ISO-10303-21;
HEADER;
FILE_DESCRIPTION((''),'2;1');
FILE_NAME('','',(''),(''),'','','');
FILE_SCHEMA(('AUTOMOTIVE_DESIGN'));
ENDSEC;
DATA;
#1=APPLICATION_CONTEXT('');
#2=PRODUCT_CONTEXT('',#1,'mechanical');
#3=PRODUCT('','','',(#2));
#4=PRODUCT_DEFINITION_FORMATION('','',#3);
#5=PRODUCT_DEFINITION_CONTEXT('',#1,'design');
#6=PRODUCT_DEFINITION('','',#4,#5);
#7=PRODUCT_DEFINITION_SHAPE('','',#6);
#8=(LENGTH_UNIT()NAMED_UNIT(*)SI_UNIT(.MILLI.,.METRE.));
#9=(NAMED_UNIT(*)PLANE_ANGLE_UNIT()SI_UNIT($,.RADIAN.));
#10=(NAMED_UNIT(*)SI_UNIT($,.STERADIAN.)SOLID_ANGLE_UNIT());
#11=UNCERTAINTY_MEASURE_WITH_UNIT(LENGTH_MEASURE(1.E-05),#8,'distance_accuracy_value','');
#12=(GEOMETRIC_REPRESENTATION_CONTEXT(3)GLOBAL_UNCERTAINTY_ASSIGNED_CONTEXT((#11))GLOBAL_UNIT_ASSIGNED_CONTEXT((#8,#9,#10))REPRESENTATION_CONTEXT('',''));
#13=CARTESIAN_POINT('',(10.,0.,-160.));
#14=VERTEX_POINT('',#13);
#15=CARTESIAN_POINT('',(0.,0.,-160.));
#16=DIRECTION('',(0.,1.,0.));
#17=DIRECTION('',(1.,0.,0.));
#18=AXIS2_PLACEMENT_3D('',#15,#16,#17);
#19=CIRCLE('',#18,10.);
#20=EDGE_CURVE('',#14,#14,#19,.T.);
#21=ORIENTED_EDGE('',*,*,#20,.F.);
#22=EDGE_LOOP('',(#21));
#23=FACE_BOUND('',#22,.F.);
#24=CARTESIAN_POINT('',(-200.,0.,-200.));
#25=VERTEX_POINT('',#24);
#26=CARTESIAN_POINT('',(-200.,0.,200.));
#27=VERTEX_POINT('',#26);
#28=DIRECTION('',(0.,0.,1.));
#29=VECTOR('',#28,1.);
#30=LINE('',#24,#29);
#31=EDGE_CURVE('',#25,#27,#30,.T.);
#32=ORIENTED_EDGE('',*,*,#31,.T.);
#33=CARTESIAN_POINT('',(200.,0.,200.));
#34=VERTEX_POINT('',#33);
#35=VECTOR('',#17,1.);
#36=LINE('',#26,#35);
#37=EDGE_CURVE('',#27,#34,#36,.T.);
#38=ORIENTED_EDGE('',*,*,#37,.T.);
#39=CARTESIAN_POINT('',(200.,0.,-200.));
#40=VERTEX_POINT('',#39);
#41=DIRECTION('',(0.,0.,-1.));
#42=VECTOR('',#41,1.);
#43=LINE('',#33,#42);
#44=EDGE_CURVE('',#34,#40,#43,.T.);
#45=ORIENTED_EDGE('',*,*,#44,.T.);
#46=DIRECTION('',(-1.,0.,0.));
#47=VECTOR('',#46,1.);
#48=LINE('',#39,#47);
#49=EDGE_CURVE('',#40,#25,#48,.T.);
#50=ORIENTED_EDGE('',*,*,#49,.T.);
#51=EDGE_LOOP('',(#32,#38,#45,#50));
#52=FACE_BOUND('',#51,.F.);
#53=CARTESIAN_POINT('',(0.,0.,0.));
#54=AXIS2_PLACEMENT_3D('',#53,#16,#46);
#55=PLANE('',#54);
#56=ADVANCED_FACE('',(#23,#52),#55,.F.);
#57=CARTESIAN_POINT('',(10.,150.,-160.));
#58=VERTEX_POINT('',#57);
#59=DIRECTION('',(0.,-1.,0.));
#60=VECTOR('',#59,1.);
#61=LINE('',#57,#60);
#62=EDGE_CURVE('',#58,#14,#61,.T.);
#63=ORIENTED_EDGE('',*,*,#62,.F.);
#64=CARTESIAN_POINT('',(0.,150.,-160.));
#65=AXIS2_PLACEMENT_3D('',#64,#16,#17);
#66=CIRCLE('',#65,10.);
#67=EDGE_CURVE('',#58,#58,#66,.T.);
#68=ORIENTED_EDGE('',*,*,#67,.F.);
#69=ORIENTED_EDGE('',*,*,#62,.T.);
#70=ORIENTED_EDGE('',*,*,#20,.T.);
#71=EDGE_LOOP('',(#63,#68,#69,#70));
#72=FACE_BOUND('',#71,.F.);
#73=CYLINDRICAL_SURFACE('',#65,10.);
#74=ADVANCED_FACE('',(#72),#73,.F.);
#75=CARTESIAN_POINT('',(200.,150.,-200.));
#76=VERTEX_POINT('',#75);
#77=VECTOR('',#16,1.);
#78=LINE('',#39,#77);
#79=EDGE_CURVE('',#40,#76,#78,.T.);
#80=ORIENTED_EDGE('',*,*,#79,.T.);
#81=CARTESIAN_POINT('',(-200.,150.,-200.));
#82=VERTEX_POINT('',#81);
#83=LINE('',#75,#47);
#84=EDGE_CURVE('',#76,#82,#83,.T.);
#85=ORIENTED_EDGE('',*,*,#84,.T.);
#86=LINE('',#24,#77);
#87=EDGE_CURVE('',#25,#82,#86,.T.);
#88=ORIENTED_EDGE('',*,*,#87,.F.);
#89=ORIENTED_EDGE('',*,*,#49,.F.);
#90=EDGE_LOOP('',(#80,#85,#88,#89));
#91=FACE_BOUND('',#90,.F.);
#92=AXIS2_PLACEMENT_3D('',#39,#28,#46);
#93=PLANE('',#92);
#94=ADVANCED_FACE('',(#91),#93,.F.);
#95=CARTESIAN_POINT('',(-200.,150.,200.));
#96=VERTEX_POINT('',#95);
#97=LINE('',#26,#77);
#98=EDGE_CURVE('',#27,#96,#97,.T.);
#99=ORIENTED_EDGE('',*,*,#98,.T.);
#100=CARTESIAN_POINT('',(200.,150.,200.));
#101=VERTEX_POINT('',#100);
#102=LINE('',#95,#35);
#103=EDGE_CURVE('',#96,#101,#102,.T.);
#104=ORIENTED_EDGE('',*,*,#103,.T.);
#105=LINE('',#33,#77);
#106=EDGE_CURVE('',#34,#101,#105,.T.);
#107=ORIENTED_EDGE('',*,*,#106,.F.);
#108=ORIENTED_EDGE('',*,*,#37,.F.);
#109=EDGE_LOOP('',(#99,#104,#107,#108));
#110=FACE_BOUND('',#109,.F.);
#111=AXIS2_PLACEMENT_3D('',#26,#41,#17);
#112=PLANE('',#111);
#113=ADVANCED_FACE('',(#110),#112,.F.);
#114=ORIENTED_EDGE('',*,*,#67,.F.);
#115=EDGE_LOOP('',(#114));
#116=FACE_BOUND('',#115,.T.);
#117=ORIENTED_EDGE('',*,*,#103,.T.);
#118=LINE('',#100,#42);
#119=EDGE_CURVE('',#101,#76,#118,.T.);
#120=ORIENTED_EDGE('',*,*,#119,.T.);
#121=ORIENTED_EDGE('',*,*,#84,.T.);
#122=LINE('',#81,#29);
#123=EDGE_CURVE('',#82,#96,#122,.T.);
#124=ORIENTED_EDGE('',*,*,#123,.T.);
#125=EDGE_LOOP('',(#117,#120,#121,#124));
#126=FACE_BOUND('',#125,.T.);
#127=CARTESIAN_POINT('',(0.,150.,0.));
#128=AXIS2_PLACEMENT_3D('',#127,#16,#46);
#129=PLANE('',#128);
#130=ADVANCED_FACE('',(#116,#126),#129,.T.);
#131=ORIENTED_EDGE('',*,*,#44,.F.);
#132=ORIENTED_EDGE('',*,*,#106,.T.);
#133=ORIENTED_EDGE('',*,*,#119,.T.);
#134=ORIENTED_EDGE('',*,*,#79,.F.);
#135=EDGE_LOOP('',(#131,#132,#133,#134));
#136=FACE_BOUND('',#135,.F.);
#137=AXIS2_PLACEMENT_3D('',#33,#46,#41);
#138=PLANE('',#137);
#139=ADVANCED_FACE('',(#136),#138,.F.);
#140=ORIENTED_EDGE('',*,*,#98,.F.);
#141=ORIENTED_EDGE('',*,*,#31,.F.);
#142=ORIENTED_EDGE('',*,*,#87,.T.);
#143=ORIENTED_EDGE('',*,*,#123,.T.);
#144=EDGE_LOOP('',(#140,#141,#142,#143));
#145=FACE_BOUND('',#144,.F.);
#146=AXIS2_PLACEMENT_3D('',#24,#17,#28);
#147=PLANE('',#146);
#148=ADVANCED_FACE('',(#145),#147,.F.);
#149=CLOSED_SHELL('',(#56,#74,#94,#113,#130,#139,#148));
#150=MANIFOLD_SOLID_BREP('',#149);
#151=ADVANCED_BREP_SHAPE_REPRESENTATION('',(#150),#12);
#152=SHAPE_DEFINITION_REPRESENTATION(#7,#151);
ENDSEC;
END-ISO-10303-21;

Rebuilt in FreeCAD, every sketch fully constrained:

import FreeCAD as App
import Part
import Sketcher
from FreeCAD import Vector


def add_polygon(sketch, points):
    """Adds a closed chain of lines whose ends are joined by coincident constraints."""
    first, n = sketch.GeometryCount, len(points)
    for a, b in zip(points, points[1:] + points[:1]):
        sketch.addGeometry(Part.LineSegment(App.Vector(*a, 0), App.Vector(*b, 0)), False)
    for i in range(n):
        sketch.addConstraint(Sketcher.Constraint("Coincident", first + i, 2, first + (i + 1) % n, 1))

doc = App.newDocument("Part")
body = doc.addObject("PartDesign::Body", "Body")

# Sketch on XZ plane
sketch1 = doc.addObject("Sketcher::SketchObject", "Sketch")
body.addObject(sketch1)
sketch1.AttachmentSupport = (doc.XZ_Plane, [""])
sketch1.MapMode = "FlatFace"
add_polygon(sketch1, [(-200, -200), (-200, 200), (200, 200), (200, -200)])  # lines 0-3
sketch1.addConstraint(Sketcher.Constraint("Vertical", 0))
sketch1.addConstraint(Sketcher.Constraint("Horizontal", 1))
sketch1.addConstraint(Sketcher.Constraint("Vertical", 2))
sketch1.addConstraint(Sketcher.Constraint("Horizontal", 3))
sketch1.addConstraint(Sketcher.Constraint("Symmetric", 0, 2, 2, 2, -1, 1))
sketch1.addConstraint(Sketcher.Constraint("Equal", 3, 0))
sketch1.addConstraint(Sketcher.Constraint("DistanceX", 1, 1, 1, 2, 400.0))
pad1 = doc.addObject("PartDesign::Pad", "Pad")
body.addObject(pad1)
pad1.Profile = sketch1
pad1.Length = 150
pad1.Reversed = True

# Sketch on XZ plane
sketch2 = doc.addObject("Sketcher::SketchObject", "Sketch001")
body.addObject(sketch2)
sketch2.AttachmentSupport = (doc.XZ_Plane, [""])
sketch2.MapMode = "FlatFace"
sketch2.AttachmentOffset = App.Placement(Vector(0, 0, -150), App.Rotation())
sketch2.addGeometry(Part.Circle(Vector(0, -160, 0), Vector(0, 0, 1), 10), False)
sketch2.addConstraint(Sketcher.Constraint("PointOnObject", 0, 3, -2))
sketch2.addConstraint(Sketcher.Constraint("Diameter", 0, 20.0))
sketch2.addConstraint(Sketcher.Constraint("DistanceY", 0, 3, -1, 1, 160.0))
pocket1 = doc.addObject("PartDesign::Pocket", "Pocket")
body.addObject(pocket1)
pocket1.Profile = sketch2
pocket1.Length = 153.75
pocket1.Reversed = True

doc.recompute()
